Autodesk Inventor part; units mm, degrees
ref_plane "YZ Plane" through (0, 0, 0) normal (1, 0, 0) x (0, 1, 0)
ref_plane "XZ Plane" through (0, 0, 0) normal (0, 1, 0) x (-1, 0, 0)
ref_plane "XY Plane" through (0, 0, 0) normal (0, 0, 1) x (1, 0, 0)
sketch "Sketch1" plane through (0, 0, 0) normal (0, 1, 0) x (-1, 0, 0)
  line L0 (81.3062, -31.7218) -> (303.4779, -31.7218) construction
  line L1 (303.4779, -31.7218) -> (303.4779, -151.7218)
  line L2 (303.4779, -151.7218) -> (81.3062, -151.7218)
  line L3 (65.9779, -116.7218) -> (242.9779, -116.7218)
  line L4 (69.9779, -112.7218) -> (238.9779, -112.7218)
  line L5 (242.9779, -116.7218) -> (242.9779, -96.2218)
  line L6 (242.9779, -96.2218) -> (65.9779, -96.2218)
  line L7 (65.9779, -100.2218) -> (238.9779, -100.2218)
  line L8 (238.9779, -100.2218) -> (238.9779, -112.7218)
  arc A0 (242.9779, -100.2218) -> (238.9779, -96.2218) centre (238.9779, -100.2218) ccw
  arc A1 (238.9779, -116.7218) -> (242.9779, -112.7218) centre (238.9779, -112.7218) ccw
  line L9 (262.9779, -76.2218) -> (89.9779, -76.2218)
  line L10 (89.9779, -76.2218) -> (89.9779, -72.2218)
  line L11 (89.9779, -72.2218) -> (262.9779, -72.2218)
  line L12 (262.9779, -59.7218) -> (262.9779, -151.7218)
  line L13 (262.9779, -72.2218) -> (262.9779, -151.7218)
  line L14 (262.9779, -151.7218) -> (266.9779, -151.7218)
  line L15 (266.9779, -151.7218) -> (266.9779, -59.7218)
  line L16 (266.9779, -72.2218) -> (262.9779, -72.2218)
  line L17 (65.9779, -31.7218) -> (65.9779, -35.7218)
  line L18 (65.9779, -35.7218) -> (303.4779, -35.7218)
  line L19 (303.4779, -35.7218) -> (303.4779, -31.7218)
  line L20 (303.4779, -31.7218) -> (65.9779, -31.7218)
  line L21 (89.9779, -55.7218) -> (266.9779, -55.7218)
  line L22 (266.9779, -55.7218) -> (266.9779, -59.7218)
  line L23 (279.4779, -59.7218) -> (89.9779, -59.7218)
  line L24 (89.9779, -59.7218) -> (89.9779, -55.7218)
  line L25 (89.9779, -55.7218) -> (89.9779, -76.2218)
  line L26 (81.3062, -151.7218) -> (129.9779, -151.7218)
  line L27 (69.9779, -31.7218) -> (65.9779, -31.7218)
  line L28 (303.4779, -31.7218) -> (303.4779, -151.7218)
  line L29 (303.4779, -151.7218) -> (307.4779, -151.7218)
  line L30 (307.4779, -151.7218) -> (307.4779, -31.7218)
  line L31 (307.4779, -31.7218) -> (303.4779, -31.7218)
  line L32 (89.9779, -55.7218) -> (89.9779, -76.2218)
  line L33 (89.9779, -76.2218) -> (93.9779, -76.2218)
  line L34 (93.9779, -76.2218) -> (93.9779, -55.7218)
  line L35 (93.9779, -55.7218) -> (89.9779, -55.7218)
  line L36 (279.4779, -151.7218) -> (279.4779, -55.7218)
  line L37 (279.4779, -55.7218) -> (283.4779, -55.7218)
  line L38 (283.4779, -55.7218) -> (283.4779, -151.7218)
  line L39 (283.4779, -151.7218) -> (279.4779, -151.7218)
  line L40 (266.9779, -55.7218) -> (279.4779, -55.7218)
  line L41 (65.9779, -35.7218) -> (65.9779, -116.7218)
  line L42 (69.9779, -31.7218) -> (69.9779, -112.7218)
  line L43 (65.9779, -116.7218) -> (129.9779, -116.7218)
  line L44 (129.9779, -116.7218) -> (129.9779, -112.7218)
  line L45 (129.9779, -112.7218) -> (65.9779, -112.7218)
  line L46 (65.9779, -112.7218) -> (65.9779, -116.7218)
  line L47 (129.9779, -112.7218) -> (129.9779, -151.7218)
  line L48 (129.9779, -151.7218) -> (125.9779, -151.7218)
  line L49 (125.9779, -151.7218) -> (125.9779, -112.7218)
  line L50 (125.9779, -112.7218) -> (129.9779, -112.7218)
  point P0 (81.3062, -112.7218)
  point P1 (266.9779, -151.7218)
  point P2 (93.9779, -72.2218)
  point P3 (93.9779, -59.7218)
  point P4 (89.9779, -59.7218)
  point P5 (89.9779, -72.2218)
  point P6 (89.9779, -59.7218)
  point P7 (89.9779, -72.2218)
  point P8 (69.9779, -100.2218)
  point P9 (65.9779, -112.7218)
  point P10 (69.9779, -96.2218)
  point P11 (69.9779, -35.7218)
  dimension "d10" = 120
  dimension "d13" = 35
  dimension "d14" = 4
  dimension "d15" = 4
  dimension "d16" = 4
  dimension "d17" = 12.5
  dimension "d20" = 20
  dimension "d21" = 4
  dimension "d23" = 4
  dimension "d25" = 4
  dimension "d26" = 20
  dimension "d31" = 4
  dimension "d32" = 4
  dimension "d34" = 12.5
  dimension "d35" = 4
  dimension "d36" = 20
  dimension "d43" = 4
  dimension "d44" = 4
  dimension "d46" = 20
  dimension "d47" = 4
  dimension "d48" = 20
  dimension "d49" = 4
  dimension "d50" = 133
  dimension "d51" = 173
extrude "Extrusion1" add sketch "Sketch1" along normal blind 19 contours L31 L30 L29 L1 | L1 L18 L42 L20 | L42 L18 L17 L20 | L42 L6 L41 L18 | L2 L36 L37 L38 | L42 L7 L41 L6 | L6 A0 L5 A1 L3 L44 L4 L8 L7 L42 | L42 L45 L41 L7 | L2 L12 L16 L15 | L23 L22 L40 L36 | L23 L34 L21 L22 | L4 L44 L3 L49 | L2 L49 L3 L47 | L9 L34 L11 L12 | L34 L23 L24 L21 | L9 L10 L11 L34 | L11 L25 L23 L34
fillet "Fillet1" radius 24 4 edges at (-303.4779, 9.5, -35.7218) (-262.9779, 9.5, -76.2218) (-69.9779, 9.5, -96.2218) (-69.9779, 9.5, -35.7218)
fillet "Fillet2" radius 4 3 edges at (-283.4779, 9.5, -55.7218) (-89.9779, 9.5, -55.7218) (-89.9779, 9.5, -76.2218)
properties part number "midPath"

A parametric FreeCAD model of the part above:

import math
import FreeCAD as App
import Part
import Sketcher
from FreeCAD import Vector
Q = App.Units.Quantity


def edges_at(feature, points):
    """Names of the edges that pass closest to the given points."""
    edges = feature.Shape.Edges
    near = lambda p: min(range(len(edges)), key=lambda i: edges[i].distToShape(Part.Vertex(*p))[0])
    return sorted({f"Edge{near(p) + 1}" for p in points})

doc = App.newDocument("Part")
body = doc.addObject("PartDesign::Body", "Body")
body.AllowCompound = True

# Sketch on XZ plane
sketch1 = body.newObject("Sketcher::SketchObject", "Sketch")
sketch1.AttachmentSupport = (doc.getObject("XZ_Plane"), [""])
sketch1.MapMode = "FlatFace"
sketch1.addGeometry([
    Part.LineSegment(Vector(-307.5, -31.7, 0), Vector(-66, -31.7, 0)),  # 0
    Part.LineSegment(Vector(-66, -31.7, 0), Vector(-66, -112.7, 0)),  # 1
    Part.LineSegment(Vector(-66, -112.7, 0), Vector(-70, -112.7, 0)),  # 2
    Part.LineSegment(Vector(-70, -112.7, 0), Vector(-70, -100.2, 0)),  # 3
    Part.LineSegment(Vector(-70, -100.2, 0), Vector(-239, -100.2, 0)),  # 4
    Part.LineSegment(Vector(-239, -100.2, 0), Vector(-239, -112.7, 0)),  # 5
    Part.LineSegment(Vector(-239, -112.7, 0), Vector(-126, -112.7, 0)),  # 6
    Part.LineSegment(Vector(-126, -112.7, 0), Vector(-126, -151.7, 0)),  # 7
    Part.LineSegment(Vector(-126, -151.7, 0), Vector(-130, -151.7, 0)),  # 8
    Part.LineSegment(Vector(-130, -151.7, 0), Vector(-130, -116.7, 0)),  # 9
    Part.LineSegment(Vector(-130, -116.7, 0), Vector(-239, -116.7, 0)),  # 10
    Part.ArcOfCircle(Part.Circle(Vector(-239, -112.7, 0), Vector(0, 0, 1), 4), math.radians(180), math.radians(270)),  # 11
    Part.LineSegment(Vector(-243, -112.7, 0), Vector(-243, -100.2, 0)),  # 12
    Part.ArcOfCircle(Part.Circle(Vector(-239, -100.2, 0), Vector(0, 0, 1), 4), math.radians(90), math.radians(180)),  # 13
    Part.LineSegment(Vector(-239, -96.2, 0), Vector(-70, -96.2, 0)),  # 14
    Part.LineSegment(Vector(-70, -96.2, 0), Vector(-70, -35.7, 0)),  # 15
    Part.LineSegment(Vector(-70, -35.7, 0), Vector(-303.5, -35.7, 0)),  # 16
    Part.LineSegment(Vector(-303.5, -35.7, 0), Vector(-303.5, -151.7, 0)),  # 17
    Part.LineSegment(Vector(-303.5, -151.7, 0), Vector(-307.5, -151.7, 0)),  # 18
    Part.LineSegment(Vector(-307.5, -151.7, 0), Vector(-307.5, -31.7, 0)),  # 19
    Part.LineSegment(Vector(-279.5, -151.7, 0), Vector(-283.5, -151.7, 0)),  # 20
    Part.LineSegment(Vector(-283.5, -151.7, 0), Vector(-283.5, -55.7, 0)),  # 21
    Part.LineSegment(Vector(-283.5, -55.7, 0), Vector(-90, -55.7, 0)),  # 22
    Part.LineSegment(Vector(-90, -55.7, 0), Vector(-90, -76.2, 0)),  # 23
    Part.LineSegment(Vector(-90, -76.2, 0), Vector(-263, -76.2, 0)),  # 24
    Part.LineSegment(Vector(-263, -76.2, 0), Vector(-263, -151.7, 0)),  # 25
    Part.LineSegment(Vector(-263, -151.7, 0), Vector(-267, -151.7, 0)),  # 26
    Part.LineSegment(Vector(-267, -151.7, 0), Vector(-267, -72.2, 0)),  # 27
    Part.LineSegment(Vector(-267, -72.2, 0), Vector(-94, -72.2, 0)),  # 28
    Part.LineSegment(Vector(-94, -72.2, 0), Vector(-94, -59.7, 0)),  # 29
    Part.LineSegment(Vector(-94, -59.7, 0), Vector(-279.5, -59.7, 0)),  # 30
    Part.LineSegment(Vector(-279.5, -59.7, 0), Vector(-279.5, -151.7, 0)),  # 31
], False)
sketch1.addConstraint([
    Sketcher.Constraint("Coincident", 0, 2, 1, 1),
    Sketcher.Constraint("Coincident", 1, 2, 2, 1),
    Sketcher.Constraint("Coincident", 2, 2, 3, 1),
    Sketcher.Constraint("Coincident", 3, 2, 4, 1),
    Sketcher.Constraint("Coincident", 4, 2, 5, 1),
    Sketcher.Constraint("Coincident", 5, 2, 6, 1),
    Sketcher.Constraint("Coincident", 6, 2, 7, 1),
    Sketcher.Constraint("Coincident", 7, 2, 8, 1),
    Sketcher.Constraint("Coincident", 8, 2, 9, 1),
    Sketcher.Constraint("Coincident", 9, 2, 10, 1),
    Sketcher.Constraint("Tangent", 10, 2, 11, 2),
    Sketcher.Constraint("Tangent", 11, 1, 12, 1),
    Sketcher.Constraint("Tangent", 12, 2, 13, 2),
    Sketcher.Constraint("Tangent", 13, 1, 14, 1),
    Sketcher.Constraint("Coincident", 14, 2, 15, 1),
    Sketcher.Constraint("Coincident", 15, 2, 16, 1),
    Sketcher.Constraint("Coincident", 16, 2, 17, 1),
    Sketcher.Constraint("Coincident", 17, 2, 18, 1),
    Sketcher.Constraint("Coincident", 18, 2, 19, 1),
    Sketcher.Constraint("Coincident", 19, 2, 0, 1),
    Sketcher.Constraint("Coincident", 20, 2, 21, 1),
    Sketcher.Constraint("Coincident", 21, 2, 22, 1),
    Sketcher.Constraint("Coincident", 22, 2, 23, 1),
    Sketcher.Constraint("Coincident", 23, 2, 24, 1),
    Sketcher.Constraint("Coincident", 24, 2, 25, 1),
    Sketcher.Constraint("Coincident", 25, 2, 26, 1),
    Sketcher.Constraint("Coincident", 26, 2, 27, 1),
    Sketcher.Constraint("Coincident", 27, 2, 28, 1),
    Sketcher.Constraint("Coincident", 28, 2, 29, 1),
    Sketcher.Constraint("Coincident", 29, 2, 30, 1),
    Sketcher.Constraint("Coincident", 30, 2, 31, 1),
    Sketcher.Constraint("Coincident", 31, 2, 20, 1),
    Sketcher.Constraint("Horizontal", 0),
    Sketcher.Constraint("Vertical", 1),
    Sketcher.Constraint("Horizontal", 2),
    Sketcher.Constraint("Vertical", 3),
    Sketcher.Constraint("Horizontal", 4),
    Sketcher.Constraint("Vertical", 5),
    Sketcher.Constraint("Horizontal", 6),
    Sketcher.Constraint("Vertical", 7),
    Sketcher.Constraint("Horizontal", 8),
    Sketcher.Constraint("Vertical", 9),
    Sketcher.Constraint("Horizontal", 10),
    Sketcher.Constraint("Vertical", 12),
    Sketcher.Constraint("Horizontal", 14),
    Sketcher.Constraint("Vertical", 15),
    Sketcher.Constraint("Horizontal", 16),
    Sketcher.Constraint("Vertical", 17),
    Sketcher.Constraint("Horizontal", 18),
    Sketcher.Constraint("Vertical", 19),
    Sketcher.Constraint("Horizontal", 20),
    Sketcher.Constraint("Vertical", 21),
    Sketcher.Constraint("Horizontal", 22),
    Sketcher.Constraint("Vertical", 23),
    Sketcher.Constraint("Horizontal", 24),
    Sketcher.Constraint("Vertical", 25),
    Sketcher.Constraint("Horizontal", 26),
    Sketcher.Constraint("Vertical", 27),
    Sketcher.Constraint("Horizontal", 28),
    Sketcher.Constraint("Vertical", 29),
    Sketcher.Constraint("Horizontal", 30),
    Sketcher.Constraint("Vertical", 31),
    Sketcher.Constraint("Coincident", 4, 2, 13, 3),
    Sketcher.Constraint("Coincident", 5, 2, 11, 3),
    Sketcher.Constraint("Horizontal", 11, 3, 1, 2),
    Sketcher.Constraint("Horizontal", 8, 2, 17, 2),
    Sketcher.Constraint("Horizontal", 18, 2, 20, 2),
    Sketcher.Constraint("Horizontal", 20, 2, 25, 2),
    Sketcher.Constraint("Vertical", 3, 2, 14, 2),
    Sketcher.Constraint("Equal", 2, 8),
    Sketcher.Constraint("Equal", 8, 18),
    Sketcher.Constraint("Equal", 18, 20),
    Sketcher.Constraint("Equal", 20, 26),
    Sketcher.Constraint("Equal", 24, 28),
    Sketcher.Constraint("Equal", 12, 29),
    Sketcher.Constraint("Radius", 11, Q("4 mm")),
    Sketcher.Constraint("DistanceX", 2, 2, 2, 1, Q("4 mm")),
    Sketcher.Constraint("DistanceX", 24, 2, 24, 1, Q("173 mm")),
    Sketcher.Constraint("DistanceY", 9, 1, 9, 2, Q("35 mm")),
    Sketcher.Constraint("DistanceY", 19, 1, 19, 2, Q("120 mm")),
    Sketcher.Constraint("DistanceY", 3, 1, 3, 2, Q("12.5 mm")),
    Sketcher.Constraint("DistanceX", 13, 3, 0, 2, Q("173 mm")),
    Sketcher.Constraint("DistanceY", 15, 2, 0, 2, Q("4 mm")),
    Sketcher.Constraint("DistanceX", 17, 2, 20, 2, Q("20 mm")),
    Sketcher.Constraint("DistanceY", 21, 2, 16, 2, Q("20 mm")),
    Sketcher.Constraint("DistanceX", 22, 2, 15, 2, Q("20 mm")),
    Sketcher.Constraint("DistanceY", 14, 2, 23, 2, Q("20 mm")),
    Sketcher.Constraint("DistanceY", 24, 2, 27, 2, Q("4 mm")),
    Sketcher.Constraint("DistanceX", 30, 2, 27, 2, Q("12.5 mm")),
    Sketcher.Constraint("DistanceX", 6, 1, 6, 2, Q("113 mm")),
    Sketcher.Constraint("DistanceX", 11, 3, -1, 1, Q("238.978 mm")),
    Sketcher.Constraint("DistanceY", 11, 3, -1, 1, Q("112.7218 mm")),
])
pad1 = body.newObject("PartDesign::Pad", "Pad")
pad1.Profile = sketch1
pad1.Length = 19
pad1.Reversed = True
doc.recompute()

fillet = body.newObject("PartDesign::Fillet", "Fillet")
fillet.Base = (pad1, edges_at(pad1, [
    (-303.478, 9.5, -35.722),
    (-262.978, 9.5, -76.222),
    (-69.978, 9.5, -96.222),
    (-69.978, 9.5, -35.722),
]))
fillet.Radius = 24
doc.recompute()

fillet2 = body.newObject("PartDesign::Fillet", "Fillet001")
fillet2.Base = (fillet, edges_at(fillet, [(-283.478, 9.5, -55.722), (-89.978, 9.5, -55.722), (-89.978, 9.5, -76.222)]))
fillet2.Radius = 4

doc.recompute()
